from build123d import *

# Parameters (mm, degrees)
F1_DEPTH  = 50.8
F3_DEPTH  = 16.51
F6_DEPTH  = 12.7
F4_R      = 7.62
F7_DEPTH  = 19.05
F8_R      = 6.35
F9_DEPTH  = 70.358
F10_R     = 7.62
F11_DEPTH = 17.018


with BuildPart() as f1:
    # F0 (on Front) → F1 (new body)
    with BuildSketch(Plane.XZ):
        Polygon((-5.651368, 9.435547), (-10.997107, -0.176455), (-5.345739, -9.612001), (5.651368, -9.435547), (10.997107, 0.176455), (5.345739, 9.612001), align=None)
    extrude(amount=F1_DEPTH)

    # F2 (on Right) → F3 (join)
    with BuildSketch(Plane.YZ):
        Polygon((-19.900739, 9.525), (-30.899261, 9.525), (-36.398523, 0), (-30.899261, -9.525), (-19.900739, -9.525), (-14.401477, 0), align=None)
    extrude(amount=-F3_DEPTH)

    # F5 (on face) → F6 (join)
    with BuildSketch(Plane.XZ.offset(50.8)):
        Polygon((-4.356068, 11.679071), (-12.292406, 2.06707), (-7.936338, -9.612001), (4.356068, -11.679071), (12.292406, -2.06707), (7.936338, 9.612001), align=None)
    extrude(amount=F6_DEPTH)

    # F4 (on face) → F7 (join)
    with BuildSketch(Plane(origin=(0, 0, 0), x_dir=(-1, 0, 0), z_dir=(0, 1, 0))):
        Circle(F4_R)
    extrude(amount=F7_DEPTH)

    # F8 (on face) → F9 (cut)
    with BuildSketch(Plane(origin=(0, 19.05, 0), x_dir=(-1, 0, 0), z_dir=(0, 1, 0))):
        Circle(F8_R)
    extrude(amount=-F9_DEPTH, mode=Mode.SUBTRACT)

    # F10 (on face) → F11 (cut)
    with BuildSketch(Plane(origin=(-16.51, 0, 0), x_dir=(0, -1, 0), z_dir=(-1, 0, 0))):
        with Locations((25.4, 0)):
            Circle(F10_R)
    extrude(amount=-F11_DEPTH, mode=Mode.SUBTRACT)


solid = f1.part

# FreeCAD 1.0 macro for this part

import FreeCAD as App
import Part
import Sketcher

V = App.Vector
Q = App.Units.Quantity


def add_polygon(sketch, points):
    """Adds a closed chain of lines whose ends are joined by coincident constraints."""
    first, n = sketch.GeometryCount, len(points)
    for a, b in zip(points, points[1:] + points[:1]):
        sketch.addGeometry(Part.LineSegment(App.Vector(*a, 0), App.Vector(*b, 0)), False)
    for i in range(n):
        sketch.addConstraint(Sketcher.Constraint("Coincident", first + i, 2, first + (i + 1) % n, 1))

doc = App.newDocument("Part")
body = doc.addObject("PartDesign::Body", "Body")

# Sketch on XZ plane
sketch1 = doc.addObject("Sketcher::SketchObject", "Sketch")
body.addObject(sketch1)
sketch1.AttachmentSupport = (doc.XZ_Plane, [""])
sketch1.MapMode = "FlatFace"
add_polygon(sketch1, [(-6, 9), (-11, 0), (-5, -10), (6, -9), (11, 0), (5, 10)])  # lines 0-5
sketch1.addConstraint([
    Sketcher.Constraint("Symmetric", 0, 2, 3, 2, -1, 1),
    Sketcher.Constraint("Symmetric", 1, 2, 4, 2, -1, 1),
    Sketcher.Constraint("Symmetric", 2, 2, 5, 2, -1, 1),
    Sketcher.Constraint("Equal", 0, 1),
    Sketcher.Constraint("Equal", 1, 2),
    Sketcher.Constraint("DistanceY", 1, 2, -1, 1, Q("9.612001 mm")),
    Sketcher.Constraint("DistanceX", 1, 2, -1, 1, Q("5.345739 mm")),
    Sketcher.Constraint("DistanceY", 2, 2, 0, 2, Q("9.259092 mm")),
    Sketcher.Constraint("DistanceX", 2, 2, 3, 2, Q("5.345739 mm")),
])
pad1 = doc.addObject("PartDesign::Pad", "Pad")
body.addObject(pad1)
pad1.Profile = sketch1
pad1.Length = Q("2 in")

# Sketch on YZ plane
sketch2 = doc.addObject("Sketcher::SketchObject", "Sketch001")
body.addObject(sketch2)
sketch2.AttachmentSupport = (doc.YZ_Plane, [""])
sketch2.MapMode = "FlatFace"
add_polygon(sketch2, [(-20, 10), (-31, 10), (-36, 0), (-31, -10), (-20, -10), (-14, 0)])  # lines 0-5
sketch2.addConstraint([
    Sketcher.Constraint("Horizontal", 0),
    Sketcher.Constraint("Horizontal", 3),
    Sketcher.Constraint("Symmetric", 0, 2, 2, 2, -1),
    Sketcher.Constraint("PointOnObject", 1, 2, -1),
    Sketcher.Constraint("PointOnObject", 4, 2, -1),
    Sketcher.Constraint("Parallel", 1, 4),
    Sketcher.Constraint("Parallel", 2, 5),
    Sketcher.Constraint("Angle", 1, Q("-120.000003 deg")),
    Sketcher.Constraint("DistanceY", 2, 2, 0, 2, Q("0.75 in")),
    Sketcher.Constraint("DistanceX", 0, 2, 0, 1, Q("10.998522 mm")),
    Sketcher.Constraint("DistanceX", 0, 2, -1, 1, Q("30.899261 mm")),
])
pad2 = doc.addObject("PartDesign::Pad", "Pad001")
body.addObject(pad2)
pad2.Profile = sketch2
pad2.Length = Q("0.65 in")
pad2.Reversed = True

# Sketch on XZ plane
sketch3 = doc.addObject("Sketcher::SketchObject", "Sketch002")
body.addObject(sketch3)
sketch3.AttachmentSupport = (doc.XZ_Plane, [""])
sketch3.MapMode = "FlatFace"
sketch3.AttachmentOffset = App.Placement(V(0, 0, 2 * 25.4), App.Rotation())
add_polygon(sketch3, [(-4, 12), (-12, 2), (-8, -10), (4, -12), (12, -2), (8, 10)])  # lines 0-5
sketch3.addConstraint([
    Sketcher.Constraint("Symmetric", 0, 2, 3, 2, -1, 1),
    Sketcher.Constraint("Symmetric", 1, 2, 4, 2, -1, 1),
    Sketcher.Constraint("Symmetric", 2, 2, 5, 2, -1, 1),
    Sketcher.Constraint("Equal", 0, 1),
    Sketcher.Constraint("Equal", 1, 2),
    Sketcher.Constraint("DistanceY", 1, 2, -1, 1, Q("9.612001 mm")),
    Sketcher.Constraint("DistanceY", 2, 2, 3, 2, Q("9.612001 mm")),
    Sketcher.Constraint("Distance", 0, Q("12.464992 mm")),
    Sketcher.Constraint("DistanceY", -1, 1, 0, 2, Q("2.06707 mm")),
])
pad3 = doc.addObject("PartDesign::Pad", "Pad002")
body.addObject(pad3)
pad3.Profile = sketch3
pad3.Length = Q("0.5 in")

# Sketch on XZ plane
sketch4 = doc.addObject("Sketcher::SketchObject", "Sketch003")
body.addObject(sketch4)
sketch4.AttachmentSupport = (doc.XZ_Plane, [""])
sketch4.MapMode = "FlatFace"
sketch4.addGeometry(Part.Circle(V(0, 0, 0), V(0, 0, 1), 8), False)
sketch4.addConstraint([
    Sketcher.Constraint("Coincident", 0, 3, -1, 1),
    Sketcher.Constraint("Diameter", 0, Q("0.6 in")),
])
pad4 = doc.addObject("PartDesign::Pad", "Pad003")
body.addObject(pad4)
pad4.Profile = sketch4
pad4.Length = Q("0.75 in")
pad4.Reversed = True

# Sketch on XZ plane
sketch5 = doc.addObject("Sketcher::SketchObject", "Sketch004")
body.addObject(sketch5)
sketch5.AttachmentSupport = (doc.XZ_Plane, [""])
sketch5.MapMode = "FlatFace"
sketch5.AttachmentOffset = App.Placement(V(0, 0, -0.75 * 25.4), App.Rotation())
sketch5.addGeometry(Part.Circle(V(0, 0, 0), V(0, 0, 1), 6), False)
sketch5.addConstraint([
    Sketcher.Constraint("Coincident", 0, 3, -1, 1),
    Sketcher.Constraint("Diameter", 0, Q("0.5 in")),
])
pocket1 = doc.addObject("PartDesign::Pocket", "Pocket")
body.addObject(pocket1)
pocket1.Profile = sketch5
pocket1.Length = Q("2.77 in")
pocket1.Reversed = True

# Sketch on YZ plane
sketch6 = doc.addObject("Sketcher::SketchObject", "Sketch005")
body.addObject(sketch6)
sketch6.AttachmentSupport = (doc.YZ_Plane, [""])
sketch6.MapMode = "FlatFace"
sketch6.AttachmentOffset = App.Placement(V(0, 0, -0.65 * 25.4), App.Rotation())
sketch6.addGeometry(Part.Circle(V(-25, 0, 0), V(0, 0, 1), 8), False)
sketch6.addConstraint([
    Sketcher.Constraint("PointOnObject", 0, 3, -1),
    Sketcher.Constraint("Diameter", 0, Q("0.6 in")),
    Sketcher.Constraint("DistanceX", 0, 3, -1, 1, Q("1 in")),
])
pocket2 = doc.addObject("PartDesign::Pocket", "Pocket001")
body.addObject(pocket2)
pocket2.Profile = sketch6
pocket2.Length = Q("0.67 in")
pocket2.Reversed = True

doc.recompute()
